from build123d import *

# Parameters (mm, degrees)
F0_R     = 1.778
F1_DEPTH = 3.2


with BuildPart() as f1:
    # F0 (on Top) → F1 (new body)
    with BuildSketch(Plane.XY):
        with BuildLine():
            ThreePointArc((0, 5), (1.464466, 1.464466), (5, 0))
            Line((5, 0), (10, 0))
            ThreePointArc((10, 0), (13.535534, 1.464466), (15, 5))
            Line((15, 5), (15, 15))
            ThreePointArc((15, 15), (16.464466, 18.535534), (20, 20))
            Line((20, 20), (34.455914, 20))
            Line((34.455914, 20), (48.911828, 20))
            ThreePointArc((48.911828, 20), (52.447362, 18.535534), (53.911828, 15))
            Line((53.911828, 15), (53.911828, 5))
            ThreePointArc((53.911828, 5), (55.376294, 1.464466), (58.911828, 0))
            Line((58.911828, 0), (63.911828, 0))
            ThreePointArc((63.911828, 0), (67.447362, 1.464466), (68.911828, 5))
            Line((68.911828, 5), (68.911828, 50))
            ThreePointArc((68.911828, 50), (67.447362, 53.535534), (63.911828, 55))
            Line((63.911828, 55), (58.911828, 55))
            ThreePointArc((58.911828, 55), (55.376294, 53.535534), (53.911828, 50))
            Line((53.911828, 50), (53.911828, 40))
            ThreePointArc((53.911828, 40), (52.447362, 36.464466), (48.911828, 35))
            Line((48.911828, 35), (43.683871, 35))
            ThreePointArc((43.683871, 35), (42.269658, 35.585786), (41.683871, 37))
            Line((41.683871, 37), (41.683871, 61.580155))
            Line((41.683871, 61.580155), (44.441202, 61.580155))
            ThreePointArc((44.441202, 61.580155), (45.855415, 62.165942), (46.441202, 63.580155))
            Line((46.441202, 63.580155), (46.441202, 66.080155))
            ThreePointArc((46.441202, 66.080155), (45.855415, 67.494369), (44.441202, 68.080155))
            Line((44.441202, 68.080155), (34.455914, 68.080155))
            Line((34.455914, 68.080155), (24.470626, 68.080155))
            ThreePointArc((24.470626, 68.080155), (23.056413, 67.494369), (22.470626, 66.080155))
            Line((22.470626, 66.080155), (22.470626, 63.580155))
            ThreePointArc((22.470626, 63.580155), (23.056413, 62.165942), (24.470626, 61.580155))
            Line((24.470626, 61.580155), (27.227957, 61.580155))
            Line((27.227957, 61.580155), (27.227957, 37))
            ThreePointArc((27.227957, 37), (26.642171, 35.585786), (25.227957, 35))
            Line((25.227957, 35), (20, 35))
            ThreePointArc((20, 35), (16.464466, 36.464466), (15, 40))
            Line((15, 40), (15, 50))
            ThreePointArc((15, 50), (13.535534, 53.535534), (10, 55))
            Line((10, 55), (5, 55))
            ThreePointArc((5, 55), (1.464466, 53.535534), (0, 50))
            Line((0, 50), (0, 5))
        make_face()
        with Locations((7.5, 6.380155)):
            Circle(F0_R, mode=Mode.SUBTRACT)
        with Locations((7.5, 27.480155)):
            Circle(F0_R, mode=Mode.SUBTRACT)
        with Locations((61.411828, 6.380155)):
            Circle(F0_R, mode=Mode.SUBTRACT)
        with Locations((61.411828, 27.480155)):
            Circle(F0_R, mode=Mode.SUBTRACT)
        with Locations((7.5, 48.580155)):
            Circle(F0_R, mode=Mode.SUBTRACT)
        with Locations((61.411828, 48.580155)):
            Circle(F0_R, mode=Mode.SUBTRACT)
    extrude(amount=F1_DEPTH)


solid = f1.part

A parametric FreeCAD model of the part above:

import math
import FreeCAD as App
import Part
import Sketcher

doc = App.newDocument("Part")
params = doc.addObject("Spreadsheet::Sheet", "Params")
for row, (alias, value) in enumerate([
    ("sketch1_radius", "5 mm"),
    ("sketch1_radius2", "2 mm"),
    ("sketch1_width", "5 mm"),
    ("sketch1_height", "10 mm"),
    ("sketch1_height2", "45 mm"),
    ("pad1_length", "3.2 mm"),
], start=1):
    params.set(f"A{row}", alias)
    params.set(f"B{row}", "=" + value)
    params.setAlias(f"B{row}", alias)

body = doc.addObject("PartDesign::Body", "Body")

sketch1 = body.newObject("Sketcher::SketchObject", "Sketch")
sketch1.AttachmentSupport = (doc.getObject("XY_Plane"), [""])
sketch1.MapMode = "FlatFace"
sketch1.addGeometry([
    Part.ArcOfCircle(Part.Circle(App.Vector(5, 5, 0), App.Vector(0, 0, 1), 5), math.radians(180), math.radians(270)),
    Part.LineSegment(App.Vector(5, 0, 0), App.Vector(10, 0, 0)),
    Part.ArcOfCircle(Part.Circle(App.Vector(10, 5, 0), App.Vector(0, 0, 1), 5), math.radians(-90), math.radians(0)),
    Part.LineSegment(App.Vector(15, 5, 0), App.Vector(15, 15, 0)),
    Part.ArcOfCircle(Part.Circle(App.Vector(20, 15, 0), App.Vector(0, 0, 1), 5), math.radians(90), math.radians(180)),
    Part.LineSegment(App.Vector(20, 20, 0), App.Vector(48.9, 20, 0)),
    Part.ArcOfCircle(Part.Circle(App.Vector(48.9, 15, 0), App.Vector(0, 0, 1), 5), math.radians(0), math.radians(90)),
    Part.LineSegment(App.Vector(53.9, 15, 0), App.Vector(53.9, 5, 0)),
    Part.ArcOfCircle(Part.Circle(App.Vector(58.9, 5, 0), App.Vector(0, 0, 1), 5), math.radians(180), math.radians(270)),
    Part.LineSegment(App.Vector(58.9, 0, 0), App.Vector(63.9, 0, 0)),
    Part.ArcOfCircle(Part.Circle(App.Vector(63.9, 5, 0), App.Vector(0, 0, 1), 5), math.radians(-90), math.radians(0)),
    Part.LineSegment(App.Vector(68.9, 5, 0), App.Vector(68.9, 50, 0)),
    Part.ArcOfCircle(Part.Circle(App.Vector(63.9, 50, 0), App.Vector(0, 0, 1), 5), math.radians(0), math.radians(90)),
    Part.LineSegment(App.Vector(63.9, 55, 0), App.Vector(58.9, 55, 0)),
    Part.ArcOfCircle(Part.Circle(App.Vector(58.9, 50, 0), App.Vector(0, 0, 1), 5), math.radians(90), math.radians(180)),
    Part.LineSegment(App.Vector(53.9, 50, 0), App.Vector(53.9, 40, 0)),
    Part.ArcOfCircle(Part.Circle(App.Vector(48.9, 40, 0), App.Vector(0, 0, 1), 5), math.radians(-90), math.radians(0)),
    Part.LineSegment(App.Vector(48.9, 35, 0), App.Vector(43.7, 35, 0)),
    Part.ArcOfCircle(Part.Circle(App.Vector(43.7, 37, 0), App.Vector(0, 0, 1), 2), math.radians(-180), math.radians(-90)),
    Part.LineSegment(App.Vector(41.7, 37, 0), App.Vector(41.7, 61.6, 0)),
    Part.LineSegment(App.Vector(41.7, 61.6, 0), App.Vector(44.4, 61.6, 0)),
    Part.ArcOfCircle(Part.Circle(App.Vector(44.4, 63.6, 0), App.Vector(0, 0, 1), 2), math.radians(-90), math.radians(0)),
    Part.LineSegment(App.Vector(46.4, 63.6, 0), App.Vector(46.4, 66.1, 0)),
    Part.ArcOfCircle(Part.Circle(App.Vector(44.4, 66.1, 0), App.Vector(0, 0, 1), 2), math.radians(0), math.radians(90)),
    Part.LineSegment(App.Vector(44.4, 68.1, 0), App.Vector(24.5, 68.1, 0)),
    Part.ArcOfCircle(Part.Circle(App.Vector(24.5, 66.1, 0), App.Vector(0, 0, 1), 2), math.radians(90), math.radians(180)),
    Part.LineSegment(App.Vector(22.5, 66.1, 0), App.Vector(22.5, 63.6, 0)),
    Part.ArcOfCircle(Part.Circle(App.Vector(24.5, 63.6, 0), App.Vector(0, 0, 1), 2), math.radians(-180), math.radians(-90)),
    Part.LineSegment(App.Vector(24.5, 61.6, 0), App.Vector(27.2, 61.6, 0)),
    Part.LineSegment(App.Vector(27.2, 61.6, 0), App.Vector(27.2, 37, 0)),
    Part.ArcOfCircle(Part.Circle(App.Vector(25.2, 37, 0), App.Vector(0, 0, 1), 2), math.radians(-90), math.radians(0)),
    Part.LineSegment(App.Vector(25.2, 35, 0), App.Vector(20, 35, 0)),
    Part.ArcOfCircle(Part.Circle(App.Vector(20, 40, 0), App.Vector(0, 0, 1), 5), math.radians(180), math.radians(270)),
    Part.LineSegment(App.Vector(15, 40, 0), App.Vector(15, 50, 0)),
    Part.ArcOfCircle(Part.Circle(App.Vector(10, 50, 0), App.Vector(0, 0, 1), 5), math.radians(0), math.radians(90)),
    Part.LineSegment(App.Vector(10, 55, 0), App.Vector(5, 55, 0)),
    Part.ArcOfCircle(Part.Circle(App.Vector(5, 50, 0), App.Vector(0, 0, 1), 5), math.radians(90), math.radians(180)),
    Part.LineSegment(App.Vector(0, 50, 0), App.Vector(0, 5, 0)),
    Part.Circle(App.Vector(7.5, 6.4, 0), App.Vector(0, 0, 1), 1.8),
    Part.Circle(App.Vector(7.5, 27.5, 0), App.Vector(0, 0, 1), 1.8),
    Part.Circle(App.Vector(61.4, 6.4, 0), App.Vector(0, 0, 1), 1.8),
    Part.Circle(App.Vector(61.4, 27.5, 0), App.Vector(0, 0, 1), 1.8),
    Part.Circle(App.Vector(7.5, 48.6, 0), App.Vector(0, 0, 1), 1.8),
    Part.Circle(App.Vector(61.4, 48.6, 0), App.Vector(0, 0, 1), 1.8),
], False)
sketch1.addConstraint([
    Sketcher.Constraint("Tangent", 0, 2, 1, 1),
    Sketcher.Constraint("Tangent", 1, 2, 2, 1),
    Sketcher.Constraint("Tangent", 2, 2, 3, 1),
    Sketcher.Constraint("Tangent", 3, 2, 4, 2),
    Sketcher.Constraint("Tangent", 4, 1, 5, 1),
    Sketcher.Constraint("Tangent", 5, 2, 6, 2),
    Sketcher.Constraint("Tangent", 6, 1, 7, 1),
    Sketcher.Constraint("Tangent", 7, 2, 8, 1),
    Sketcher.Constraint("Tangent", 8, 2, 9, 1),
    Sketcher.Constraint("Tangent", 9, 2, 10, 1),
    Sketcher.Constraint("Tangent", 10, 2, 11, 1),
    Sketcher.Constraint("Tangent", 11, 2, 12, 1),
    Sketcher.Constraint("Tangent", 12, 2, 13, 1),
    Sketcher.Constraint("Tangent", 13, 2, 14, 1),
    Sketcher.Constraint("Tangent", 14, 2, 15, 1),
    Sketcher.Constraint("Tangent", 15, 2, 16, 2),
    Sketcher.Constraint("Tangent", 16, 1, 17, 1),
    Sketcher.Constraint("Tangent", 17, 2, 18, 2),
    Sketcher.Constraint("Tangent", 18, 1, 19, 1),
    Sketcher.Constraint("Coincident", 19, 2, 20, 1),
    Sketcher.Constraint("Tangent", 20, 2, 21, 1),
    Sketcher.Constraint("Tangent", 21, 2, 22, 1),
    Sketcher.Constraint("Tangent", 22, 2, 23, 1),
    Sketcher.Constraint("Tangent", 23, 2, 24, 1),
    Sketcher.Constraint("Tangent", 24, 2, 25, 1),
    Sketcher.Constraint("Tangent", 25, 2, 26, 1),
    Sketcher.Constraint("Tangent", 26, 2, 27, 1),
    Sketcher.Constraint("Tangent", 27, 2, 28, 1),
    Sketcher.Constraint("Coincident", 28, 2, 29, 1),
    Sketcher.Constraint("Tangent", 29, 2, 30, 2),
    Sketcher.Constraint("Tangent", 30, 1, 31, 1),
    Sketcher.Constraint("Tangent", 31, 2, 32, 2),
    Sketcher.Constraint("Tangent", 32, 1, 33, 1),
    Sketcher.Constraint("Tangent", 33, 2, 34, 1),
    Sketcher.Constraint("Tangent", 34, 2, 35, 1),
    Sketcher.Constraint("Tangent", 35, 2, 36, 1),
    Sketcher.Constraint("Tangent", 36, 2, 37, 1),
    Sketcher.Constraint("Tangent", 37, 2, 0, 1),
    Sketcher.Constraint("Horizontal", 1),
    Sketcher.Constraint("Vertical", 3),
    Sketcher.Constraint("Horizontal", 5),
    Sketcher.Constraint("Vertical", 7),
    Sketcher.Constraint("Horizontal", 9),
    Sketcher.Constraint("Vertical", 11),
    Sketcher.Constraint("Horizontal", 13),
    Sketcher.Constraint("Vertical", 15),
    Sketcher.Constraint("Horizontal", 17),
    Sketcher.Constraint("Vertical", 19),
    Sketcher.Constraint("Horizontal", 20),
    Sketcher.Constraint("Vertical", 22),
    Sketcher.Constraint("Horizontal", 24),
    Sketcher.Constraint("Vertical", 26),
    Sketcher.Constraint("Horizontal", 28),
    Sketcher.Constraint("Vertical", 29),
    Sketcher.Constraint("Horizontal", 31),
    Sketcher.Constraint("Vertical", 33),
    Sketcher.Constraint("Horizontal", 35),
    Sketcher.Constraint("Vertical", 37),
    Sketcher.Constraint("Equal", 0, 2),
    Sketcher.Constraint("Equal", 2, 4),
    Sketcher.Constraint("Equal", 4, 6),
    Sketcher.Constraint("Equal", 6, 8),
    Sketcher.Constraint("Equal", 8, 10),
    Sketcher.Constraint("Equal", 10, 12),
    Sketcher.Constraint("Equal", 12, 14),
    Sketcher.Constraint("Equal", 14, 16),
    Sketcher.Constraint("Equal", 18, 21),
    Sketcher.Constraint("Equal", 21, 23),
    Sketcher.Constraint("Equal", 23, 25),
    Sketcher.Constraint("Equal", 25, 27),
    Sketcher.Constraint("Equal", 25, 30),
    Sketcher.Constraint("Equal", 16, 32),
    Sketcher.Constraint("Equal", 32, 34),
    Sketcher.Constraint("Equal", 34, 36),
    Sketcher.Constraint("Equal", 38, 39),
    Sketcher.Constraint("Equal", 39, 40),
    Sketcher.Constraint("Equal", 40, 41),
    Sketcher.Constraint("Equal", 41, 42),
    Sketcher.Constraint("Equal", 42, 43),
    Sketcher.Constraint("PointOnObject", 0, 2, -1),
    Sketcher.Constraint("PointOnObject", 8, 2, -1),
    Sketcher.Constraint("PointOnObject", 36, 2, -2),
    Sketcher.Constraint("Horizontal", 21, 3, 27, 3),
    Sketcher.Constraint("Horizontal", 18, 3, 30, 3),
    Sketcher.Constraint("Horizontal", 14, 3, 34, 3),
    Sketcher.Constraint("Horizontal", 38, 3, 40, 3),
    Sketcher.Constraint("Horizontal", 39, 3, 41, 3),
    Sketcher.Constraint("Horizontal", 42, 3, 43, 3),
    Sketcher.Constraint("Vertical", 8, 3, 14, 3),
    Sketcher.Constraint("Vertical", 4, 3, 32, 3),
    Sketcher.Constraint("Vertical", 38, 3, 39, 3),
    Sketcher.Constraint("Vertical", 40, 3, 41, 3),
    Sketcher.Constraint("Vertical", 39, 3, 42, 3),
    Sketcher.Constraint("Vertical", 41, 3, 43, 3),
    Sketcher.Constraint("Equal", 1, 9),
    Sketcher.Constraint("Equal", 20, 28),
    Sketcher.Constraint("Equal", 17, 31),
    Sketcher.Constraint("Equal", 7, 15),
    Sketcher.Constraint("Radius", 0, 5.0),
    Sketcher.Constraint("Radius", 18, 2.0),
    Sketcher.Constraint("DistanceX", 1, 1, 1, 2, 5.0),
    Sketcher.Constraint("DistanceY", 3, 1, 3, 2, 10.0),
    Sketcher.Constraint("DistanceY", 11, 1, 11, 2, 45.0),
    Sketcher.Constraint("Diameter", 38, 3.556),
    Sketcher.Constraint("DistanceY", 22, 1, 22, 2, 2.5),
    Sketcher.Constraint("DistanceX", -1, 1, 38, 3, 7.5),
    Sketcher.Constraint("DistanceX", 5, 1, 5, 2, 28.911828),
    Sketcher.Constraint("DistanceX", 20, 1, 20, 2, 2.757331),
    Sketcher.Constraint("DistanceX", -1, 1, 21, 3, 44.4412),
    Sketcher.Constraint("DistanceY", 19, 1, 19, 2, 24.580155),
    Sketcher.Constraint("DistanceY", -1, 1, 38, 3, 6.380155),
    Sketcher.Constraint("DistanceY", -1, 1, 39, 3, 27.480155),
    Sketcher.Constraint("DistanceX", -1, 1, 40, 3, 61.411828),
    Sketcher.Constraint("DistanceY", -1, 1, 42, 3, 48.580155),
])
sketch1.setExpression("Constraints[98]", "Params.sketch1_radius")
sketch1.setExpression("Constraints[99]", "Params.sketch1_radius2")
sketch1.setExpression("Constraints[100]", "Params.sketch1_width")
sketch1.setExpression("Constraints[101]", "Params.sketch1_height")
sketch1.setExpression("Constraints[102]", "Params.sketch1_height2")
pad1 = body.newObject("PartDesign::Pad", "Pad")
pad1.Profile = sketch1
pad1.setExpression("Length", "Params.pad1_length")

doc.recompute()
